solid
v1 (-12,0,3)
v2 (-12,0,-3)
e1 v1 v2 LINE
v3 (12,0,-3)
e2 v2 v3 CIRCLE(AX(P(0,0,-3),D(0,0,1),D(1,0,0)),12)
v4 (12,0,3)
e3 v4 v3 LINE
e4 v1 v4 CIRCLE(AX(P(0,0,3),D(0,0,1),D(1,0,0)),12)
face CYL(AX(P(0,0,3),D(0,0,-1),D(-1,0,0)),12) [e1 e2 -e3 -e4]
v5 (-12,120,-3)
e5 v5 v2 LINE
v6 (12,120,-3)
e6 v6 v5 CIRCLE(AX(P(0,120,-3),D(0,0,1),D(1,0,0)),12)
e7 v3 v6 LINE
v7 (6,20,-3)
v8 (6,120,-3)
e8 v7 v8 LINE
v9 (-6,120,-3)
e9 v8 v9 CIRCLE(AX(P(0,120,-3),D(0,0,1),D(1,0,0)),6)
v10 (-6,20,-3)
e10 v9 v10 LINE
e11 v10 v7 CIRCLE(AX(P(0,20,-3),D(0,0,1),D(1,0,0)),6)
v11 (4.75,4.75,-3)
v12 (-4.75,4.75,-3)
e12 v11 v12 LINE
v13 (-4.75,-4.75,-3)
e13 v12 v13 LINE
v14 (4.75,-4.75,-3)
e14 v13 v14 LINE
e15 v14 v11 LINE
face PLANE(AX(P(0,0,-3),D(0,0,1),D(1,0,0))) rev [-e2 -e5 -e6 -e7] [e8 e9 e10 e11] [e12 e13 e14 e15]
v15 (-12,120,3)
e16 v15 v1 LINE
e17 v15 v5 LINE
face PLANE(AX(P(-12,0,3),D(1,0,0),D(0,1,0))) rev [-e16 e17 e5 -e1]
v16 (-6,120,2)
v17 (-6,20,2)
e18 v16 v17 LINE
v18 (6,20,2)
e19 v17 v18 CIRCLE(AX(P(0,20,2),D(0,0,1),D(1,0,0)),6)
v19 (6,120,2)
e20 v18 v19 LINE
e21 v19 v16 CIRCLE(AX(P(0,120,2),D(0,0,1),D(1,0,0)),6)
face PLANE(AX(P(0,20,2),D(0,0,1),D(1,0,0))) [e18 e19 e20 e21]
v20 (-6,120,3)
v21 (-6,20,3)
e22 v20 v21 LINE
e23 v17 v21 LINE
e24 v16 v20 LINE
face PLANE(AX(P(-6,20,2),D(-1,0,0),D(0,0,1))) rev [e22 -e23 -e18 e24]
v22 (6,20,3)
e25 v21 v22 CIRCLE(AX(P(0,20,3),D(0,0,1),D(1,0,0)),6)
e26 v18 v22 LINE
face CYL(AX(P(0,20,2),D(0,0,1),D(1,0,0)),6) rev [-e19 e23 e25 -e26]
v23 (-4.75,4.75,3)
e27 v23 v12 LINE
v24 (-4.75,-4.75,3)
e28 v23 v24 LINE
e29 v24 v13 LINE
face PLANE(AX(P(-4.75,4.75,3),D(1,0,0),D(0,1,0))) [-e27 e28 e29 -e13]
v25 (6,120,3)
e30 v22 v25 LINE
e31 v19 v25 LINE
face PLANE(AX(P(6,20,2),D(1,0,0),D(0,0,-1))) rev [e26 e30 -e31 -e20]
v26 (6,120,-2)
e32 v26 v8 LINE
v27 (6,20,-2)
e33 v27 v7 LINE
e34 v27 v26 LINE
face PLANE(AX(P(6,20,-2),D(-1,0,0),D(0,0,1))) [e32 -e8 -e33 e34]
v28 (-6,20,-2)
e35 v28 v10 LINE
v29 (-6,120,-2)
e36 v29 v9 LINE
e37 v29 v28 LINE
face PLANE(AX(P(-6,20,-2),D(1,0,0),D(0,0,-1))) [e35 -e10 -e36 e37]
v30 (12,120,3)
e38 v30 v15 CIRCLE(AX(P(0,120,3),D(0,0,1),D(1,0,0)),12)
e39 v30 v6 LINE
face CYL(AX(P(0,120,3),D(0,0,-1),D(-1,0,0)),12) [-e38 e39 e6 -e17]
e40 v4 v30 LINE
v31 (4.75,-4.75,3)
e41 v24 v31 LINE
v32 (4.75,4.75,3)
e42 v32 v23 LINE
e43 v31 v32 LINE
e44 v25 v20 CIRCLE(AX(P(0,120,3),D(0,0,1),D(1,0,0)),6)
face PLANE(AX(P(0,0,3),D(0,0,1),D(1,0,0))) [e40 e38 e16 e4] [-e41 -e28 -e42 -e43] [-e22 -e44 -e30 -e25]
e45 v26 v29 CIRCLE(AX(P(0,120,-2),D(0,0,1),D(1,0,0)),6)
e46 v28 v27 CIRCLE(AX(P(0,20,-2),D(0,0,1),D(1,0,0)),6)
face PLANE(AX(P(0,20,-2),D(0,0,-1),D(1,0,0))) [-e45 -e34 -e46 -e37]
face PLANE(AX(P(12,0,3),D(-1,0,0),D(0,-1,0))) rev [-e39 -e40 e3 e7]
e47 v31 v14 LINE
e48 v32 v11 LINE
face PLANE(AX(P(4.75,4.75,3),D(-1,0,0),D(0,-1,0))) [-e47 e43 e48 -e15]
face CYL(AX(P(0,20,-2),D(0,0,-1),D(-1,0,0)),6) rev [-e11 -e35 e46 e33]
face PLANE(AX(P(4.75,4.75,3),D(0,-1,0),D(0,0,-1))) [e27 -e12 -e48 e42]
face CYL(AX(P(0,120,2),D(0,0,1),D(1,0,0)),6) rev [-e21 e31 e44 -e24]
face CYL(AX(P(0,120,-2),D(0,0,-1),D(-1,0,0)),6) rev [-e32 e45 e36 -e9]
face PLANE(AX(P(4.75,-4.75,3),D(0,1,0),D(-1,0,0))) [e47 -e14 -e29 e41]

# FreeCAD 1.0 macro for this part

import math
import FreeCAD as App
import Part
import Sketcher
Q = App.Units.Quantity


def add_polygon(sketch, points):
    """Adds a closed chain of lines whose ends are joined by coincident constraints."""
    first, n = sketch.GeometryCount, len(points)
    for a, b in zip(points, points[1:] + points[:1]):
        sketch.addGeometry(Part.LineSegment(App.Vector(*a, 0), App.Vector(*b, 0)), False)
    for i in range(n):
        sketch.addConstraint(Sketcher.Constraint("Coincident", first + i, 2, first + (i + 1) % n, 1))

doc = App.newDocument("Part")
body = doc.addObject("PartDesign::Body", "Body")

sketch1 = body.newObject("Sketcher::SketchObject", "Sketch")
sketch1.AttachmentSupport = (doc.getObject("XY_Plane"), [""])
sketch1.MapMode = "FlatFace"
sketch1.addGeometry(Part.LineSegment(App.Vector(-12, 120, 0), App.Vector(-12, 0, 0)), False)
sketch1.addGeometry(Part.ArcOfCircle(Part.Circle(App.Vector(0, 0, 0), App.Vector(0, 0, 1), 12), math.radians(180), math.radians(360)), False)
sketch1.addGeometry(Part.LineSegment(App.Vector(12, 0, 0), App.Vector(12, 120, 0)), False)
sketch1.addGeometry(Part.ArcOfCircle(Part.Circle(App.Vector(0, 120, 0), App.Vector(0, 0, 1), 12), math.radians(0), math.radians(180)), False)
add_polygon(sketch1, [(-5, -5), (-5, 5), (5, 5), (5, -5)])
sketch1.addConstraint([
    Sketcher.Constraint("Tangent", 0, 2, 1, 1),
    Sketcher.Constraint("Tangent", 1, 2, 2, 1),
    Sketcher.Constraint("Tangent", 2, 2, 3, 1),
    Sketcher.Constraint("Tangent", 3, 2, 0, 1),
    Sketcher.Constraint("Vertical", 0),
    Sketcher.Constraint("Vertical", 2),
    Sketcher.Constraint("Vertical", 4),
    Sketcher.Constraint("Horizontal", 5),
    Sketcher.Constraint("Vertical", 6),
    Sketcher.Constraint("Horizontal", 7),
    Sketcher.Constraint("Coincident", 1, 3, -1, 1),
    Sketcher.Constraint("Symmetric", 4, 2, 6, 2, -1, 1),
    Sketcher.Constraint("Equal", 7, 4),
    Sketcher.Constraint("Radius", 1, Q("12 mm")),
    Sketcher.Constraint("DistanceY", 0, 2, 0, 1, Q("120 mm")),
    Sketcher.Constraint("DistanceX", 5, 1, 5, 2, Q("9.5 mm")),
])
pad1 = body.newObject("PartDesign::Pad", "Pad")
pad1.Profile = sketch1
pad1.Length = 6
pad1.Midplane = True

sketch2 = body.newObject("Sketcher::SketchObject", "Sketch001")
sketch2.AttachmentSupport = (doc.getObject("XY_Plane"), [""])
sketch2.MapMode = "FlatFace"
sketch2.AttachmentOffset = App.Placement(App.Vector(0, 0, 3), App.Rotation())
sketch2.addGeometry([
    Part.LineSegment(App.Vector(-6, 120, 0), App.Vector(-6, 20, 0)),
    Part.ArcOfCircle(Part.Circle(App.Vector(0, 20, 0), App.Vector(0, 0, 1), 6), math.radians(180), math.radians(360)),
    Part.LineSegment(App.Vector(6, 20, 0), App.Vector(6, 120, 0)),
    Part.ArcOfCircle(Part.Circle(App.Vector(0, 120, 0), App.Vector(0, 0, 1), 6), math.radians(0), math.radians(180)),
], False)
sketch2.addConstraint([
    Sketcher.Constraint("Tangent", 0, 2, 1, 1),
    Sketcher.Constraint("Tangent", 1, 2, 2, 1),
    Sketcher.Constraint("Tangent", 2, 2, 3, 1),
    Sketcher.Constraint("Tangent", 3, 2, 0, 1),
    Sketcher.Constraint("Vertical", 0),
    Sketcher.Constraint("Vertical", 2),
    Sketcher.Constraint("PointOnObject", 1, 3, -2),
    Sketcher.Constraint("Radius", 1, Q("6 mm")),
    Sketcher.Constraint("DistanceY", 0, 2, 0, 1, Q("100 mm")),
    Sketcher.Constraint("DistanceY", -1, 1, 1, 3, Q("20 mm")),
])
pocket1 = body.newObject("PartDesign::Pocket", "Pocket")
pocket1.Profile = sketch2
pocket1.Length = 1
doc.recompute()

mirrored = body.newObject("PartDesign::Mirrored", "Mirrored")
mirrored.Originals = [pocket1]
mirrored.MirrorPlane = (doc.getObject("XY_Plane"), [""])
body.Tip = mirrored

doc.recompute()
